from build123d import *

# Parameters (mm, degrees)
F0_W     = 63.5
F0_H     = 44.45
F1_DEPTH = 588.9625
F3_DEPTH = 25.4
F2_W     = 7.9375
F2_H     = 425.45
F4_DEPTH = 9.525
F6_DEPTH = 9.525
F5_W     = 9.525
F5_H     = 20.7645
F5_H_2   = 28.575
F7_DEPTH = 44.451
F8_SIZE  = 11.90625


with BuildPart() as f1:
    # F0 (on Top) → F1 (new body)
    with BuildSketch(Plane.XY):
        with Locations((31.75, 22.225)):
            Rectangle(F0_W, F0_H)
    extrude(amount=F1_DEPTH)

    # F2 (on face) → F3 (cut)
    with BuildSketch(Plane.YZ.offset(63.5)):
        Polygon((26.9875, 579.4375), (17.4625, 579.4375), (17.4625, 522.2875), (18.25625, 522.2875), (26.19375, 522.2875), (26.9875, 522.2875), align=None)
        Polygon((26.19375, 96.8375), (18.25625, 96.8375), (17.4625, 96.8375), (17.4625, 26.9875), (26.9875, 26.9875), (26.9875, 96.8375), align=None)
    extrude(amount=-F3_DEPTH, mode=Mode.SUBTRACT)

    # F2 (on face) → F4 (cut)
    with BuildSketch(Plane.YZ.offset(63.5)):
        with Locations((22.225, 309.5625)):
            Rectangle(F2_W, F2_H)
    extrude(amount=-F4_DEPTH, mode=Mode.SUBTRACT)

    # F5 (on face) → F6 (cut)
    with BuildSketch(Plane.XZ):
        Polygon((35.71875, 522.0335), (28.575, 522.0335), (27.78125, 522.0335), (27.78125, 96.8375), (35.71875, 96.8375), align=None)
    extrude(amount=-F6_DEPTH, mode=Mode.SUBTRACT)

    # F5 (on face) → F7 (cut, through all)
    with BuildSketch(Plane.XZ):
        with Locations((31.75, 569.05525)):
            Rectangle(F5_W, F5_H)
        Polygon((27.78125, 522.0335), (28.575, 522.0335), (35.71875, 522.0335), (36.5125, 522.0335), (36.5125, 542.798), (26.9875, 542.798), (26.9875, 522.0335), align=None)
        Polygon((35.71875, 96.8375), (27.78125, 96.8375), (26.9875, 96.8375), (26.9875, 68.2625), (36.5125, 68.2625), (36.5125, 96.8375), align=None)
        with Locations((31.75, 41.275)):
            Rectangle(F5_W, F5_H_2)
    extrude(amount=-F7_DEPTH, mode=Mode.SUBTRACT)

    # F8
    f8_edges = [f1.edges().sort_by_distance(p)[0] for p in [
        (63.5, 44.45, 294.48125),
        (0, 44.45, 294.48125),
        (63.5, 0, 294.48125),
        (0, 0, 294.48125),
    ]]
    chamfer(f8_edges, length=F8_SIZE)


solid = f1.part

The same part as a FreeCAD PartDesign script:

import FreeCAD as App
import Part
import Sketcher
Q = App.Units.Quantity


def edges_at(feature, points):
    """Names of the edges that pass closest to the given points."""
    edges = feature.Shape.Edges
    near = lambda p: min(range(len(edges)), key=lambda i: edges[i].distToShape(Part.Vertex(*p))[0])
    return sorted({f"Edge{near(p) + 1}" for p in points})


def add_polygon(sketch, points):
    """Adds a closed chain of lines whose ends are joined by coincident constraints."""
    first, n = sketch.GeometryCount, len(points)
    for a, b in zip(points, points[1:] + points[:1]):
        sketch.addGeometry(Part.LineSegment(App.Vector(*a, 0), App.Vector(*b, 0)), False)
    for i in range(n):
        sketch.addConstraint(Sketcher.Constraint("Coincident", first + i, 2, first + (i + 1) % n, 1))

doc = App.newDocument("Part")
body = doc.addObject("PartDesign::Body", "Body")

sketch1 = body.newObject("Sketcher::SketchObject", "Sketch")
sketch1.AttachmentSupport = (doc.getObject("XY_Plane"), [""])
sketch1.MapMode = "FlatFace"
add_polygon(sketch1, [(0, 44), (0, 0), (64, 0), (64, 44)])
sketch1.addConstraint(Sketcher.Constraint("Vertical", 0))
sketch1.addConstraint(Sketcher.Constraint("Horizontal", 1))
sketch1.addConstraint(Sketcher.Constraint("Vertical", 2))
sketch1.addConstraint(Sketcher.Constraint("Horizontal", 3))
sketch1.addConstraint(Sketcher.Constraint("Coincident", 0, 2, -1, 1))
sketch1.addConstraint(Sketcher.Constraint("DistanceX", 1, 1, 1, 2, Q("2.5 in")))
sketch1.addConstraint(Sketcher.Constraint("DistanceY", 0, 2, 0, 1, Q("1.75 in")))
pad1 = body.newObject("PartDesign::Pad", "Pad")
pad1.Profile = sketch1
pad1.Length = Q("23.1875 in")

sketch2 = body.newObject("Sketcher::SketchObject", "Sketch001")
sketch2.AttachmentSupport = (doc.getObject("YZ_Plane"), [""])
sketch2.MapMode = "FlatFace"
sketch2.AttachmentOffset = App.Placement(App.Vector(0, 0, 2.5 * 25.4), App.Rotation())
add_polygon(sketch2, [(27, 579), (17, 579), (17, 522), (27, 522)])
add_polygon(sketch2, [(17, 97), (17, 27), (27, 27), (27, 97)])
sketch2.addConstraint(Sketcher.Constraint("Horizontal", 0))
sketch2.addConstraint(Sketcher.Constraint("Vertical", 1))
sketch2.addConstraint(Sketcher.Constraint("Horizontal", 2))
sketch2.addConstraint(Sketcher.Constraint("Vertical", 3))
sketch2.addConstraint(Sketcher.Constraint("Vertical", 4))
sketch2.addConstraint(Sketcher.Constraint("Horizontal", 5))
sketch2.addConstraint(Sketcher.Constraint("Vertical", 6))
sketch2.addConstraint(Sketcher.Constraint("Horizontal", 7))
sketch2.addConstraint(Sketcher.Constraint("Vertical", 1, 2, 4, 2))
sketch2.addConstraint(Sketcher.Constraint("Vertical", 3, 2, 5, 2))
sketch2.addConstraint(Sketcher.Constraint("DistanceY", 6, 2, 3, 2, Q("19 in")))
sketch2.addConstraint(Sketcher.Constraint("DistanceY", 1, 2, 1, 1, Q("2.25 in")))
sketch2.addConstraint(Sketcher.Constraint("DistanceY", 4, 2, 4, 1, Q("2.75 in")))
sketch2.addConstraint(Sketcher.Constraint("DistanceX", 0, 2, 0, 1, Q("0.375 in")))
sketch2.addConstraint(Sketcher.Constraint("DistanceX", -1, 1, 0, 2, Q("0.6875 in")))
sketch2.addConstraint(Sketcher.Constraint("DistanceY", -1, 1, 0, 2, Q("22.8125 in")))
pocket1 = body.newObject("PartDesign::Pocket", "Pocket")
pocket1.Profile = sketch2
pocket1.Length = Q("1 in")

sketch3 = body.newObject("Sketcher::SketchObject", "Sketch002")
sketch3.AttachmentSupport = (doc.getObject("YZ_Plane"), [""])
sketch3.MapMode = "FlatFace"
sketch3.AttachmentOffset = App.Placement(App.Vector(0, 0, 2.5 * 25.4), App.Rotation())
add_polygon(sketch3, [(18, 522), (18, 97), (26, 97), (26, 522)])
sketch3.addConstraint(Sketcher.Constraint("Vertical", 0))
sketch3.addConstraint(Sketcher.Constraint("Horizontal", 1))
sketch3.addConstraint(Sketcher.Constraint("Vertical", 2))
sketch3.addConstraint(Sketcher.Constraint("Horizontal", 3))
sketch3.addConstraint(Sketcher.Constraint("DistanceY", 0, 2, 0, 1, Q("16.75 in")))
sketch3.addConstraint(Sketcher.Constraint("DistanceX", 1, 1, 1, 2, Q("0.3125 in")))
sketch3.addConstraint(Sketcher.Constraint("DistanceX", -1, 1, 0, 2, Q("0.71875 in")))
sketch3.addConstraint(Sketcher.Constraint("DistanceY", -1, 1, 0, 2, Q("3.8125 in")))
pocket2 = body.newObject("PartDesign::Pocket", "Pocket001")
pocket2.Profile = sketch3
pocket2.Length = Q("0.375 in")

sketch4 = body.newObject("Sketcher::SketchObject", "Sketch003")
sketch4.AttachmentSupport = (doc.getObject("XZ_Plane"), [""])
sketch4.MapMode = "FlatFace"
add_polygon(sketch4, [(36, 522), (28, 522), (28, 97), (36, 97)])
sketch4.addConstraint(Sketcher.Constraint("Horizontal", 0))
sketch4.addConstraint(Sketcher.Constraint("Vertical", 1))
sketch4.addConstraint(Sketcher.Constraint("Horizontal", 2))
sketch4.addConstraint(Sketcher.Constraint("Vertical", 3))
sketch4.addConstraint(Sketcher.Constraint("DistanceY", 1, 2, 1, 1, Q("16.74 in")))
sketch4.addConstraint(Sketcher.Constraint("DistanceX", 0, 2, 0, 1, Q("0.3125 in")))
sketch4.addConstraint(Sketcher.Constraint("DistanceX", -1, 1, 0, 2, Q("1.09375 in")))
sketch4.addConstraint(Sketcher.Constraint("DistanceY", -1, 1, 1, 2, Q("3.8125 in")))
pocket3 = body.newObject("PartDesign::Pocket", "Pocket002")
pocket3.Profile = sketch4
pocket3.Length = Q("0.375 in")

sketch5 = body.newObject("Sketcher::SketchObject", "Sketch004")
sketch5.AttachmentSupport = (doc.getObject("XZ_Plane"), [""])
sketch5.MapMode = "FlatFace"
add_polygon(sketch5, [(27, 579), (27, 559), (37, 559), (37, 579)])
add_polygon(sketch5, [(37, 522), (37, 543), (27, 543), (27, 522)])
add_polygon(sketch5, [(27, 97), (27, 68), (37, 68), (37, 97)])
add_polygon(sketch5, [(27, 56), (27, 27), (37, 27), (37, 56)])
sketch5.addConstraint(Sketcher.Constraint("Vertical", 0))
sketch5.addConstraint(Sketcher.Constraint("Horizontal", 1))
sketch5.addConstraint(Sketcher.Constraint("Vertical", 2))
sketch5.addConstraint(Sketcher.Constraint("Horizontal", 3))
sketch5.addConstraint(Sketcher.Constraint("Vertical", 4))
sketch5.addConstraint(Sketcher.Constraint("Horizontal", 5))
sketch5.addConstraint(Sketcher.Constraint("Vertical", 6))
sketch5.addConstraint(Sketcher.Constraint("Horizontal", 7))
sketch5.addConstraint(Sketcher.Constraint("Vertical", 8))
sketch5.addConstraint(Sketcher.Constraint("Horizontal", 9))
sketch5.addConstraint(Sketcher.Constraint("Vertical", 10))
sketch5.addConstraint(Sketcher.Constraint("Horizontal", 11))
sketch5.addConstraint(Sketcher.Constraint("Vertical", 12))
sketch5.addConstraint(Sketcher.Constraint("Horizontal", 13))
sketch5.addConstraint(Sketcher.Constraint("Vertical", 14))
sketch5.addConstraint(Sketcher.Constraint("Horizontal", 15))
sketch5.addConstraint(Sketcher.Constraint("Vertical", 2, 2, 4, 2))
sketch5.addConstraint(Sketcher.Constraint("Vertical", 3, 2, 5, 2))
sketch5.addConstraint(Sketcher.Constraint("Vertical", 6, 2, 8, 2))
sketch5.addConstraint(Sketcher.Constraint("Vertical", 7, 2, 9, 2))
sketch5.addConstraint(Sketcher.Constraint("Vertical", 11, 2, 12, 2))
sketch5.addConstraint(Sketcher.Constraint("Vertical", 10, 2, 13, 2))
sketch5.addConstraint(Sketcher.Constraint("Equal", 2, 4))
sketch5.addConstraint(Sketcher.Constraint("Equal", 10, 12))
sketch5.addConstraint(Sketcher.Constraint("DistanceY", 14, 2, 9, 2, Q("0.5 in")))
sketch5.addConstraint(Sketcher.Constraint("DistanceX", 1, 1, 1, 2, Q("0.375 in")))
sketch5.addConstraint(Sketcher.Constraint("DistanceY", 8, 2, 8, 1, Q("1.125 in")))
sketch5.addConstraint(Sketcher.Constraint("DistanceY", -1, 1, 4, 2, Q("21.37 in")))
sketch5.addConstraint(Sketcher.Constraint("DistanceY", 6, 2, 3, 2, Q("2.26 in")))
sketch5.addConstraint(Sketcher.Constraint("DistanceY", 10, 2, 7, 2, Q("16.74 in")))
sketch5.addConstraint(Sketcher.Constraint("DistanceY", 0, 2, 0, 1, Q("0.8175 in")))
sketch5.addConstraint(Sketcher.Constraint("DistanceX", -1, 1, 0, 2, Q("1.0625 in")))
pocket4 = body.newObject("PartDesign::Pocket", "Pocket003")
pocket4.Profile = sketch5
pocket4.Type = "ThroughAll"
doc.recompute()

chamfer = body.newObject("PartDesign::Chamfer", "Chamfer")
chamfer.Base = (pocket4, edges_at(pocket4, [
    (63.5, 44.45, 294.481),
    (0, 44.45, 294.481),
    (63.5, 0, 294.481),
    (0, 0, 294.481),
]))
chamfer.Size = Q("0.46875 in")

doc.recompute()
